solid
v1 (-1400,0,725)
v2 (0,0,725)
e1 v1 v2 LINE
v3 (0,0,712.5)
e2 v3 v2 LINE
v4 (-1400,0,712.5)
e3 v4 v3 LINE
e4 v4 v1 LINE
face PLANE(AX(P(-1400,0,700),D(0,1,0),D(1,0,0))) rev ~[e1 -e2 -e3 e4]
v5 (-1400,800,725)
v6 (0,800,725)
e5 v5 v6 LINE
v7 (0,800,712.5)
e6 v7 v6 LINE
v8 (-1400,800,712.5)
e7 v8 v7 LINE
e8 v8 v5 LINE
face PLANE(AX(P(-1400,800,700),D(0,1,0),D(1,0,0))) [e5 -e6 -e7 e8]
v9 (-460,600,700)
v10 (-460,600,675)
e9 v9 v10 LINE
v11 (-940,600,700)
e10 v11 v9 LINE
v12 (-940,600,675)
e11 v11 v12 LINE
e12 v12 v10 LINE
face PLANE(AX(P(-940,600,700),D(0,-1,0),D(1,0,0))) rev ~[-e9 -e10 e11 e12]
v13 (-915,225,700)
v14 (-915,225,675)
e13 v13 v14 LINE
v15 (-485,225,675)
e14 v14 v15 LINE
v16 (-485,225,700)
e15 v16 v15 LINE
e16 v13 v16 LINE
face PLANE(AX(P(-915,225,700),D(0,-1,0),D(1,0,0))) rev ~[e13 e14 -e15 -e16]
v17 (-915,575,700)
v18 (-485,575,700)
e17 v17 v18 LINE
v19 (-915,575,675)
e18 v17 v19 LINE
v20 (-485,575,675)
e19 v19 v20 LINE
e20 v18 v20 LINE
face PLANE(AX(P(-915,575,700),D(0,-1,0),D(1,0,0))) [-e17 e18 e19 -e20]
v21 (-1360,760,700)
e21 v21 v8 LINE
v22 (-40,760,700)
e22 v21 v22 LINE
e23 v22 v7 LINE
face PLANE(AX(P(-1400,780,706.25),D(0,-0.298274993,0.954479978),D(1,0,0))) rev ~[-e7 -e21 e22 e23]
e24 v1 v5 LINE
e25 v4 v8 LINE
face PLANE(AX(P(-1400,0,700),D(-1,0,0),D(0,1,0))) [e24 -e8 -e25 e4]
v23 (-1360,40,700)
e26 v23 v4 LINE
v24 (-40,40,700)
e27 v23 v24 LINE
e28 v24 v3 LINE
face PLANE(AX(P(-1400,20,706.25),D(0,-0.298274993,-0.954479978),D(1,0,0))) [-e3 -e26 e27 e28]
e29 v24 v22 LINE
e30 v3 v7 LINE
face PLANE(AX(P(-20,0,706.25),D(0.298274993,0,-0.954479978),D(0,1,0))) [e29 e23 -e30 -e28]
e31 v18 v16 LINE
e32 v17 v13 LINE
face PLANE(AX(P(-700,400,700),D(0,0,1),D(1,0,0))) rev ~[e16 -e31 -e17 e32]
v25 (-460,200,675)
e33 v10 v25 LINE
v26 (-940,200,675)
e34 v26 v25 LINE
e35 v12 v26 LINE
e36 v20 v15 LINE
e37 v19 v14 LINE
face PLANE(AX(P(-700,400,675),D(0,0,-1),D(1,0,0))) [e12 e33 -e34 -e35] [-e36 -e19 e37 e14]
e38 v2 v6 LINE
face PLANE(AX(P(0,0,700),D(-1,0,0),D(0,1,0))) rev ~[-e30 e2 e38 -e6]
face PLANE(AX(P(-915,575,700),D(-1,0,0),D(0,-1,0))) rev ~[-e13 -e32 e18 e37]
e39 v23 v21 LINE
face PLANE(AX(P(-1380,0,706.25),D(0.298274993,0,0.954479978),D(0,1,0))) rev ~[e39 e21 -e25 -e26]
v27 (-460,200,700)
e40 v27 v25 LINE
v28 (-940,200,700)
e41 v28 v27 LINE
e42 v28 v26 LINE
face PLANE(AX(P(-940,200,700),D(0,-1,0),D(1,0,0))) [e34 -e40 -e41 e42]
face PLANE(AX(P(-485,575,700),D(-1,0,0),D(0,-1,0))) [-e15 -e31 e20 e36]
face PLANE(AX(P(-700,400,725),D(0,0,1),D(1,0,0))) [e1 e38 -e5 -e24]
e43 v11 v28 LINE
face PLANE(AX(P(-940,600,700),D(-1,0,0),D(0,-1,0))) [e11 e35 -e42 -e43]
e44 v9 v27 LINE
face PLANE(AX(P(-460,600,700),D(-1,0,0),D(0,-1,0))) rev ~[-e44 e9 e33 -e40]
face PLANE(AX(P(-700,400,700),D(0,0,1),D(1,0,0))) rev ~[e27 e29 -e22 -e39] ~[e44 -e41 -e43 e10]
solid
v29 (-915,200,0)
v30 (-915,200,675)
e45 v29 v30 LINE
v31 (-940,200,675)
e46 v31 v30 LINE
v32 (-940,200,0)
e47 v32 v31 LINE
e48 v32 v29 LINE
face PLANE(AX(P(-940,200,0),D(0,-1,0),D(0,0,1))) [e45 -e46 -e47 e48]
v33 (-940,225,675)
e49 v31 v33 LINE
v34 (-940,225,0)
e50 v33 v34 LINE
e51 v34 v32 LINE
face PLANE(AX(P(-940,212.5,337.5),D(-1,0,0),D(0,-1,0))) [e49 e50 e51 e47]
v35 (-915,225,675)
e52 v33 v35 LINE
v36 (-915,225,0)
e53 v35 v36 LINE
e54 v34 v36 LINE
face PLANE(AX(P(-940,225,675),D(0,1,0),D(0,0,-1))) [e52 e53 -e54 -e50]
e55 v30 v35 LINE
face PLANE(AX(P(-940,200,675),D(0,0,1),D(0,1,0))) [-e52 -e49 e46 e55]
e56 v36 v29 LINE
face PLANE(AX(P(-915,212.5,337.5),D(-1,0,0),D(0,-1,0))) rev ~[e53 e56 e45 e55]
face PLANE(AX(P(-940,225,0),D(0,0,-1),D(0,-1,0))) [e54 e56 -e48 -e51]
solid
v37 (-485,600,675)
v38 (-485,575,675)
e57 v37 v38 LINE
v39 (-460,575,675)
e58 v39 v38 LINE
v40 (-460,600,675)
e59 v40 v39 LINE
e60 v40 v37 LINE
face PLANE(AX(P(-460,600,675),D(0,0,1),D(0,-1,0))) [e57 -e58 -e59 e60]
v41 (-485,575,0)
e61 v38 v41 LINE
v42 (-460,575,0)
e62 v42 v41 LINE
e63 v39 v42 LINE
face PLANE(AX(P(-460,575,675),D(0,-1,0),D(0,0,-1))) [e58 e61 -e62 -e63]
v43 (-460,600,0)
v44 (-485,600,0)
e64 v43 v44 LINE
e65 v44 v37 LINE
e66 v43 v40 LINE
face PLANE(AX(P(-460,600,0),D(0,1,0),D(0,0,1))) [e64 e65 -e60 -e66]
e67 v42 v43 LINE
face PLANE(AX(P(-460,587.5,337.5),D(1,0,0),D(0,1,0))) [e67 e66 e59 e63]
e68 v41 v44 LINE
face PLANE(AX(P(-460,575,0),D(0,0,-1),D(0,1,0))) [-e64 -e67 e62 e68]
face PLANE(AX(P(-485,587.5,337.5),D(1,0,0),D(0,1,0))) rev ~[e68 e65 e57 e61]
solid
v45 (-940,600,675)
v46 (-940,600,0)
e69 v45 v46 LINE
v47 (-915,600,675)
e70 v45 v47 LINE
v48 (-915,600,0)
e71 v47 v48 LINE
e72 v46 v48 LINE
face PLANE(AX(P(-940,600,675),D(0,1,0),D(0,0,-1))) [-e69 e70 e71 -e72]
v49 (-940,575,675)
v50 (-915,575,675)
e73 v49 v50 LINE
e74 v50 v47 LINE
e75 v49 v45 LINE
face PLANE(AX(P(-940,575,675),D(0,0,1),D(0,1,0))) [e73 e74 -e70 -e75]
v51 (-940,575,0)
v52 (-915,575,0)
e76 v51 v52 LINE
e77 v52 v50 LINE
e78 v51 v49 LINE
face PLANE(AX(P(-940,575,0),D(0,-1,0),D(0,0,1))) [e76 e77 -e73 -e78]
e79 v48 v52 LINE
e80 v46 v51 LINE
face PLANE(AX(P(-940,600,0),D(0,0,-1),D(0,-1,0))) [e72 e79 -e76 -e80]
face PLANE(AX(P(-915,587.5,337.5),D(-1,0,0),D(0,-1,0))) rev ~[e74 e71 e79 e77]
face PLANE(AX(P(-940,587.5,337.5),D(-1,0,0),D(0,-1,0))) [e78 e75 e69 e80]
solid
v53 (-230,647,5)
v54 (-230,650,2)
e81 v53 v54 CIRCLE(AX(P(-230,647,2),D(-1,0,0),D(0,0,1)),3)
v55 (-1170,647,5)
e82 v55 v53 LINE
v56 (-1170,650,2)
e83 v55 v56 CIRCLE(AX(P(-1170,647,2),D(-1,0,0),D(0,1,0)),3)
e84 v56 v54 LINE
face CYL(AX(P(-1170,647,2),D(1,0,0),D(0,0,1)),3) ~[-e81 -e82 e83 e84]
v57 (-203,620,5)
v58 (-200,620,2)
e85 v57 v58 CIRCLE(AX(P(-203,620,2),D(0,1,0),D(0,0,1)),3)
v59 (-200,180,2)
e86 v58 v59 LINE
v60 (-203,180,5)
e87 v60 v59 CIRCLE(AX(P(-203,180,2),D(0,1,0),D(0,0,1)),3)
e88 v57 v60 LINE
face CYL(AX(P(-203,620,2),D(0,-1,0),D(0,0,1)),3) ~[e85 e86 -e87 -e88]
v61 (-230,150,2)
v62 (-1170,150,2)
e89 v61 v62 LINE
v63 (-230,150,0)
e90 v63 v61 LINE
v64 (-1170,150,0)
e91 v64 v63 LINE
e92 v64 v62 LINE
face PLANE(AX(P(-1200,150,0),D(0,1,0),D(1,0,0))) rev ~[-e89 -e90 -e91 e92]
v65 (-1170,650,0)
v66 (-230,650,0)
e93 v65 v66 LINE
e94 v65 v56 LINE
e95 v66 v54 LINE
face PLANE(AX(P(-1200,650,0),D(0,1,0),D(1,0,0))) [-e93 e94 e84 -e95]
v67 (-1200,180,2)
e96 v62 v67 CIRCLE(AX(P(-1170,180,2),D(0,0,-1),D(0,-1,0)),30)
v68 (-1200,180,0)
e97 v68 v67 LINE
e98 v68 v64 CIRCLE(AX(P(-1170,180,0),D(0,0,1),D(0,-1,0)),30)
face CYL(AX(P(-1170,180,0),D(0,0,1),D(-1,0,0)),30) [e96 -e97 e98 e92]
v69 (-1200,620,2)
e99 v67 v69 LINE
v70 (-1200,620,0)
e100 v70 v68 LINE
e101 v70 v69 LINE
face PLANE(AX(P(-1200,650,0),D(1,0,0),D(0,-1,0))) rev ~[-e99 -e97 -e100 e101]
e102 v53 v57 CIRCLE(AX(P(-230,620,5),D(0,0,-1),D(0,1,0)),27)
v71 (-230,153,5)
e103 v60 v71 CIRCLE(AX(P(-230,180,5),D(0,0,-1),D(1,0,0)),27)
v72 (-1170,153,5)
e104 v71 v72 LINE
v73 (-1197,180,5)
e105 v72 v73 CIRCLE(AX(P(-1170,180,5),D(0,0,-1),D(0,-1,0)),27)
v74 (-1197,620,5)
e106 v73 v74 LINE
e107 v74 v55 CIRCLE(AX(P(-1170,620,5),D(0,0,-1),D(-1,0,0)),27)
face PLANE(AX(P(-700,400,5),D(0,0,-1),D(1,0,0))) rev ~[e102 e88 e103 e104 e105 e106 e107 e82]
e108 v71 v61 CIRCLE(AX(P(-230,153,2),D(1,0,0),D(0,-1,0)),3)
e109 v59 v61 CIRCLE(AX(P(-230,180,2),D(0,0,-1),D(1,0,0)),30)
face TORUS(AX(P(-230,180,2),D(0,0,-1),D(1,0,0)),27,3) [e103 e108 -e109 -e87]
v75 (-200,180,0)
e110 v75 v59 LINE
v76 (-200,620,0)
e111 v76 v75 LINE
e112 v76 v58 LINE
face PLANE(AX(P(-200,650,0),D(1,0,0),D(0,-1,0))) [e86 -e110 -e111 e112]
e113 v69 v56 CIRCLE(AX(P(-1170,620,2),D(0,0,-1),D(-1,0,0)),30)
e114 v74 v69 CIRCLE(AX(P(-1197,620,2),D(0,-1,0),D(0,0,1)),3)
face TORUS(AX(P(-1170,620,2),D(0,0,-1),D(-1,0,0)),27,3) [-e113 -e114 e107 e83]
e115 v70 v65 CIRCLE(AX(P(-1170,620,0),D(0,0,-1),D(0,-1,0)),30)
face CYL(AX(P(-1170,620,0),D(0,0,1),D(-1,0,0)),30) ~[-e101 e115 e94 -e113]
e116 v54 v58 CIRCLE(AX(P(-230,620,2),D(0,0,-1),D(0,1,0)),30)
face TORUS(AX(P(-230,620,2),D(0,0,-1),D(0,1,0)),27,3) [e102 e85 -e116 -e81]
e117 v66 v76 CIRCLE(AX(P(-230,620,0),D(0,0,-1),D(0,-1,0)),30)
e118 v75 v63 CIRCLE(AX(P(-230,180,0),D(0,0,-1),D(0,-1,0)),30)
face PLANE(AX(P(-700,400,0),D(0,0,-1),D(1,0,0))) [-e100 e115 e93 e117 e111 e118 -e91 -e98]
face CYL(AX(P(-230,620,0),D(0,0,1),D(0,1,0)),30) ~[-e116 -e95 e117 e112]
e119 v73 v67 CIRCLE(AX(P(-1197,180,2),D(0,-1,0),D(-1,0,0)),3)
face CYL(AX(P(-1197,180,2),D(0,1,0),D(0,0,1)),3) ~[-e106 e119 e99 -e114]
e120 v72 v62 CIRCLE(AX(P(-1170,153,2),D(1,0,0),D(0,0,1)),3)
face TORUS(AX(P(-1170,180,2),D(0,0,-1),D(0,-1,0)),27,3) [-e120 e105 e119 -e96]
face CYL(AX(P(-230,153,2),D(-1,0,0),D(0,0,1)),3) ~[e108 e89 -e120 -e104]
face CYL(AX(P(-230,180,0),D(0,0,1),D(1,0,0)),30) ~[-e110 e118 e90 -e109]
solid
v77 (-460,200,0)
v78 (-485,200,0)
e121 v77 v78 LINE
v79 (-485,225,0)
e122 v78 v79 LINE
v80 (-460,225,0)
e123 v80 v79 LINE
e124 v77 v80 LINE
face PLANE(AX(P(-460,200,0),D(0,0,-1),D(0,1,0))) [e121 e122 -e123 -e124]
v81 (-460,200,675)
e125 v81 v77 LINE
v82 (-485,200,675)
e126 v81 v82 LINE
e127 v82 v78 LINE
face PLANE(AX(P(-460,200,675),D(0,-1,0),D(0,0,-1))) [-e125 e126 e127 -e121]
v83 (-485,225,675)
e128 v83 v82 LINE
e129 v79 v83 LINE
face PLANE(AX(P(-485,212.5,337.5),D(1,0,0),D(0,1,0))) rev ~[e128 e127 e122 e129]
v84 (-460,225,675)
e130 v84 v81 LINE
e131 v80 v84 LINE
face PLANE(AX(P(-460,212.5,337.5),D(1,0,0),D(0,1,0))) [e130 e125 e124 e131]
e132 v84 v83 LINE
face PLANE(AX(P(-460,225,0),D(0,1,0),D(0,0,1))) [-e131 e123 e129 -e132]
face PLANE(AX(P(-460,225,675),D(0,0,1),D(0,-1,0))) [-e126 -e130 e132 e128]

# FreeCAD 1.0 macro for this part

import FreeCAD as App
import Part
import Sketcher

V = App.Vector
Q = App.Units.Quantity


def edges_at(feature, points):
    """Names of the edges that pass closest to the given points."""
    edges = feature.Shape.Edges
    near = lambda p: min(range(len(edges)), key=lambda i: edges[i].distToShape(Part.Vertex(*p))[0])
    return sorted({f"Edge{near(p) + 1}" for p in points})


def add_polygon(sketch, points):
    """Adds a closed chain of lines whose ends are joined by coincident constraints."""
    first, n = sketch.GeometryCount, len(points)
    for a, b in zip(points, points[1:] + points[:1]):
        sketch.addGeometry(Part.LineSegment(App.Vector(*a, 0), App.Vector(*b, 0)), False)
    for i in range(n):
        sketch.addConstraint(Sketcher.Constraint("Coincident", first + i, 2, first + (i + 1) % n, 1))

doc = App.newDocument("Part")
params = doc.addObject("Spreadsheet::Sheet", "Params")
for row, (alias, value) in enumerate([
    ("sketch1_width", "1400 mm"),
    ("sketch1_height", "800 mm"),
    ("pad1_length", "25 mm"),
    ("chamfer_size", "40 mm"),
    ("chamfer_size2", "12.5 mm"),
    ("sketch2_width", "480 mm"),
    ("sketch2_width2", "430 mm"),
    ("sketch2_height", "400 mm"),
    ("sketch2_height2", "350 mm"),
    ("pad2_length", "25 mm"),
    ("sketch3_width", "25 mm"),
    ("sketch3_height", "675 mm"),
    ("pad3_length", "25 mm"),
    ("sketch4_width", "25 mm"),
    ("sketch4_height", "675 mm"),
    ("pad4_length", "25 mm"),
    ("sketch5_width", "25 mm"),
    ("sketch5_height", "675 mm"),
    ("pad5_length", "25 mm"),
    ("sketch6_width", "25 mm"),
    ("sketch6_height", "675 mm"),
    ("pad6_length", "25 mm"),
    ("sketch7_width", "1000 mm"),
    ("sketch7_height", "500 mm"),
    ("pad7_length", "5 mm"),
    ("fillet_radius", "30 mm"),
    ("fillet2_radius", "3 mm"),
], start=1):
    params.set(f"A{row}", alias)
    params.set(f"B{row}", "=" + value)
    params.setAlias(f"B{row}", alias)

body = doc.addObject("PartDesign::Body", "Body")

sketch1 = body.newObject("Sketcher::SketchObject", "Sketch")
sketch1.AttachmentSupport = (doc.getObject("XY_Plane"), [""])
sketch1.MapMode = "FlatFace"
sketch1.AttachmentOffset = App.Placement(V(0, 0, 700), App.Rotation())
add_polygon(sketch1, [(-1400, 800), (-1400, 0), (0, 0), (0, 800)])
sketch1.addConstraint(Sketcher.Constraint("Vertical", 0))
sketch1.addConstraint(Sketcher.Constraint("Horizontal", 1))
sketch1.addConstraint(Sketcher.Constraint("Vertical", 2))
sketch1.addConstraint(Sketcher.Constraint("Horizontal", 3))
sketch1.addConstraint(Sketcher.Constraint("Coincident", 1, 2, -1, 1))
sketch1.addConstraint(Sketcher.Constraint("DistanceX", 1, 1, 1, 2, Q("1400 mm")))
sketch1.addConstraint(Sketcher.Constraint("DistanceY", 0, 2, 0, 1, Q("800 mm")))
sketch1.setExpression("Constraints[9]", "Params.sketch1_width")
sketch1.setExpression("Constraints[10]", "Params.sketch1_height")
pad1 = body.newObject("PartDesign::Pad", "Pad")
pad1.Profile = sketch1
pad1.setExpression("Length", "Params.pad1_length")
doc.recompute()

chamfer = body.newObject("PartDesign::Chamfer", "Chamfer")
chamfer.Base = (pad1, edges_at(pad1, [
    (-700, 0, 700),
    (0, 400, 700),
    (-700, 800, 700),
    (-1400, 400, 700),
]))
chamfer.ChamferType = "Two distances"
chamfer.setExpression("Size", "Params.chamfer_size")
chamfer.setExpression("Size2", "Params.chamfer_size2")
chamfer.FlipDirection = True

sketch2 = body.newObject("Sketcher::SketchObject", "Sketch001")
sketch2.AttachmentSupport = (doc.getObject("XY_Plane"), [""])
sketch2.MapMode = "FlatFace"
sketch2.AttachmentOffset = App.Placement(V(0, 0, 700), App.Rotation())
add_polygon(sketch2, [(-940, 200), (-940, 600), (-460, 600), (-460, 200)])
add_polygon(sketch2, [(-485, 575), (-915, 575), (-915, 225), (-485, 225)])
sketch2.addConstraint(Sketcher.Constraint("Vertical", 0))
sketch2.addConstraint(Sketcher.Constraint("Horizontal", 1))
sketch2.addConstraint(Sketcher.Constraint("Vertical", 2))
sketch2.addConstraint(Sketcher.Constraint("Horizontal", 3))
sketch2.addConstraint(Sketcher.Constraint("Horizontal", 4))
sketch2.addConstraint(Sketcher.Constraint("Vertical", 5))
sketch2.addConstraint(Sketcher.Constraint("Horizontal", 6))
sketch2.addConstraint(Sketcher.Constraint("Vertical", 7))
sketch2.addConstraint(Sketcher.Constraint("DistanceX", 1, 1, 1, 2, Q("480 mm")))
sketch2.addConstraint(Sketcher.Constraint("DistanceX", 4, 2, 4, 1, Q("430 mm")))
sketch2.addConstraint(Sketcher.Constraint("DistanceY", 0, 1, 0, 2, Q("400 mm")))
sketch2.addConstraint(Sketcher.Constraint("DistanceY", 5, 2, 5, 1, Q("350 mm")))
sketch2.addConstraint(Sketcher.Constraint("DistanceX", 0, 2, -1, 1, Q("940 mm")))
sketch2.addConstraint(Sketcher.Constraint("DistanceY", -1, 1, 0, 2, Q("600 mm")))
sketch2.addConstraint(Sketcher.Constraint("DistanceX", 4, 2, -1, 1, Q("915 mm")))
sketch2.addConstraint(Sketcher.Constraint("DistanceY", -1, 1, 4, 2, Q("575 mm")))
sketch2.setExpression("Constraints[16]", "Params.sketch2_width")
sketch2.setExpression("Constraints[17]", "Params.sketch2_width2")
sketch2.setExpression("Constraints[18]", "Params.sketch2_height")
sketch2.setExpression("Constraints[19]", "Params.sketch2_height2")
pad2 = body.newObject("PartDesign::Pad", "Pad001")
pad2.Profile = sketch2
pad2.setExpression("Length", "Params.pad2_length")
pad2.Reversed = True
body2 = doc.addObject("PartDesign::Body", "Body001")

sketch3 = body2.newObject("Sketcher::SketchObject", "Sketch002")
sketch3.AttachmentSupport = (doc.getObject("YZ_Plane001"), [""])
sketch3.MapMode = "FlatFace"
sketch3.AttachmentOffset = App.Placement(V(0, 0, -460), App.Rotation())
add_polygon(sketch3, [(575, 0), (600, 0), (600, 675), (575, 675)])
sketch3.addConstraint(Sketcher.Constraint("Horizontal", 0))
sketch3.addConstraint(Sketcher.Constraint("Vertical", 1))
sketch3.addConstraint(Sketcher.Constraint("Horizontal", 2))
sketch3.addConstraint(Sketcher.Constraint("Vertical", 3))
sketch3.addConstraint(Sketcher.Constraint("PointOnObject", 0, 2, -1))
sketch3.addConstraint(Sketcher.Constraint("DistanceX", 0, 1, 0, 2, Q("25 mm")))
sketch3.addConstraint(Sketcher.Constraint("DistanceY", 1, 1, 1, 2, Q("675 mm")))
sketch3.addConstraint(Sketcher.Constraint("DistanceX", -1, 1, 0, 2, Q("600 mm")))
sketch3.setExpression("Constraints[9]", "Params.sketch3_width")
sketch3.setExpression("Constraints[10]", "Params.sketch3_height")
pad3 = body2.newObject("PartDesign::Pad", "Pad002")
pad3.Profile = sketch3
pad3.setExpression("Length", "Params.pad3_length")
pad3.Reversed = True
body3 = doc.addObject("PartDesign::Body", "Body002")

sketch4 = body3.newObject("Sketcher::SketchObject", "Sketch003")
sketch4.AttachmentSupport = (doc.getObject("YZ_Plane002"), [""])
sketch4.MapMode = "FlatFace"
sketch4.AttachmentOffset = App.Placement(V(0, 0, -460), App.Rotation())
add_polygon(sketch4, [(225, 675), (200, 675), (200, 0), (225, 0)])
sketch4.addConstraint(Sketcher.Constraint("Horizontal", 0))
sketch4.addConstraint(Sketcher.Constraint("Vertical", 1))
sketch4.addConstraint(Sketcher.Constraint("Horizontal", 2))
sketch4.addConstraint(Sketcher.Constraint("Vertical", 3))
sketch4.addConstraint(Sketcher.Constraint("PointOnObject", 1, 2, -1))
sketch4.addConstraint(Sketcher.Constraint("DistanceX", 0, 2, 0, 1, Q("25 mm")))
sketch4.addConstraint(Sketcher.Constraint("DistanceY", 1, 2, 1, 1, Q("675 mm")))
sketch4.addConstraint(Sketcher.Constraint("DistanceX", -1, 1, 0, 2, Q("200 mm")))
sketch4.setExpression("Constraints[9]", "Params.sketch4_width")
sketch4.setExpression("Constraints[10]", "Params.sketch4_height")
pad4 = body3.newObject("PartDesign::Pad", "Pad003")
pad4.Profile = sketch4
pad4.setExpression("Length", "Params.pad4_length")
pad4.Reversed = True
body4 = doc.addObject("PartDesign::Body", "Body003")

sketch5 = body4.newObject("Sketcher::SketchObject", "Sketch004")
sketch5.AttachmentSupport = (doc.getObject("YZ_Plane003"), [""])
sketch5.MapMode = "FlatFace"
sketch5.AttachmentOffset = App.Placement(V(0, 0, -940), App.Rotation())
add_polygon(sketch5, [(600, 0), (575, 0), (575, 675), (600, 675)])
sketch5.addConstraint(Sketcher.Constraint("Horizontal", 0))
sketch5.addConstraint(Sketcher.Constraint("Vertical", 1))
sketch5.addConstraint(Sketcher.Constraint("Horizontal", 2))
sketch5.addConstraint(Sketcher.Constraint("Vertical", 3))
sketch5.addConstraint(Sketcher.Constraint("PointOnObject", 0, 2, -1))
sketch5.addConstraint(Sketcher.Constraint("DistanceX", 0, 2, 0, 1, Q("25 mm")))
sketch5.addConstraint(Sketcher.Constraint("DistanceY", 1, 1, 1, 2, Q("675 mm")))
sketch5.addConstraint(Sketcher.Constraint("DistanceX", -1, 1, 0, 2, Q("575 mm")))
sketch5.setExpression("Constraints[9]", "Params.sketch5_width")
sketch5.setExpression("Constraints[10]", "Params.sketch5_height")
pad5 = body4.newObject("PartDesign::Pad", "Pad004")
pad5.Profile = sketch5
pad5.setExpression("Length", "Params.pad5_length")
body5 = doc.addObject("PartDesign::Body", "Body004")

sketch6 = body5.newObject("Sketcher::SketchObject", "Sketch005")
sketch6.AttachmentSupport = (doc.getObject("YZ_Plane004"), [""])
sketch6.MapMode = "FlatFace"
sketch6.AttachmentOffset = App.Placement(V(0, 0, -940), App.Rotation())
add_polygon(sketch6, [(225, 0), (200, 0), (200, 675), (225, 675)])
sketch6.addConstraint(Sketcher.Constraint("Horizontal", 0))
sketch6.addConstraint(Sketcher.Constraint("Vertical", 1))
sketch6.addConstraint(Sketcher.Constraint("Horizontal", 2))
sketch6.addConstraint(Sketcher.Constraint("Vertical", 3))
sketch6.addConstraint(Sketcher.Constraint("PointOnObject", 0, 2, -1))
sketch6.addConstraint(Sketcher.Constraint("DistanceX", 0, 2, 0, 1, Q("25 mm")))
sketch6.addConstraint(Sketcher.Constraint("DistanceY", 1, 1, 1, 2, Q("675 mm")))
sketch6.addConstraint(Sketcher.Constraint("DistanceX", -1, 1, 0, 2, Q("200 mm")))
sketch6.setExpression("Constraints[9]", "Params.sketch6_width")
sketch6.setExpression("Constraints[10]", "Params.sketch6_height")
pad6 = body5.newObject("PartDesign::Pad", "Pad005")
pad6.Profile = sketch6
pad6.setExpression("Length", "Params.pad6_length")
body6 = doc.addObject("PartDesign::Body", "Body005")

sketch7 = body6.newObject("Sketcher::SketchObject", "Sketch006")
sketch7.AttachmentSupport = (doc.getObject("XY_Plane005"), [""])
sketch7.MapMode = "FlatFace"
add_polygon(sketch7, [(-1200, 150), (-1200, 650), (-200, 650), (-200, 150)])
sketch7.addConstraint(Sketcher.Constraint("Vertical", 0))
sketch7.addConstraint(Sketcher.Constraint("Horizontal", 1))
sketch7.addConstraint(Sketcher.Constraint("Vertical", 2))
sketch7.addConstraint(Sketcher.Constraint("Horizontal", 3))
sketch7.addConstraint(Sketcher.Constraint("DistanceX", 1, 1, 1, 2, Q("1000 mm")))
sketch7.addConstraint(Sketcher.Constraint("DistanceY", 0, 1, 0, 2, Q("500 mm")))
sketch7.addConstraint(Sketcher.Constraint("DistanceX", 0, 2, -1, 1, Q("1200 mm")))
sketch7.addConstraint(Sketcher.Constraint("DistanceY", -1, 1, 0, 2, Q("650 mm")))
sketch7.setExpression("Constraints[8]", "Params.sketch7_width")
sketch7.setExpression("Constraints[9]", "Params.sketch7_height")
pad7 = body6.newObject("PartDesign::Pad", "Pad006")
pad7.Profile = sketch7
pad7.setExpression("Length", "Params.pad7_length")
doc.recompute()

fillet = body6.newObject("PartDesign::Fillet", "Fillet")
fillet.Base = (pad7, edges_at(pad7, [
    (-1200, 150, 2.5),
    (-1200, 650, 2.5),
    (-200, 650, 2.5),
    (-200, 150, 2.5),
]))
fillet.setExpression("Radius", "Params.fillet_radius")
doc.recompute()

fillet2 = body6.newObject("PartDesign::Fillet", "Fillet001")
fillet2.Base = (fillet, edges_at(fillet, [
    (-200, 400, 5),
    (-208.787, 641.213, 5),
    (-700, 650, 5),
    (-1191.213, 641.213, 5),
    (-1200, 400, 5),
    (-700, 150, 5),
    (-208.787, 158.787, 5),
    (-1191.213, 158.787, 5),
]))
fillet2.setExpression("Radius", "Params.fillet2_radius")

doc.recompute()
